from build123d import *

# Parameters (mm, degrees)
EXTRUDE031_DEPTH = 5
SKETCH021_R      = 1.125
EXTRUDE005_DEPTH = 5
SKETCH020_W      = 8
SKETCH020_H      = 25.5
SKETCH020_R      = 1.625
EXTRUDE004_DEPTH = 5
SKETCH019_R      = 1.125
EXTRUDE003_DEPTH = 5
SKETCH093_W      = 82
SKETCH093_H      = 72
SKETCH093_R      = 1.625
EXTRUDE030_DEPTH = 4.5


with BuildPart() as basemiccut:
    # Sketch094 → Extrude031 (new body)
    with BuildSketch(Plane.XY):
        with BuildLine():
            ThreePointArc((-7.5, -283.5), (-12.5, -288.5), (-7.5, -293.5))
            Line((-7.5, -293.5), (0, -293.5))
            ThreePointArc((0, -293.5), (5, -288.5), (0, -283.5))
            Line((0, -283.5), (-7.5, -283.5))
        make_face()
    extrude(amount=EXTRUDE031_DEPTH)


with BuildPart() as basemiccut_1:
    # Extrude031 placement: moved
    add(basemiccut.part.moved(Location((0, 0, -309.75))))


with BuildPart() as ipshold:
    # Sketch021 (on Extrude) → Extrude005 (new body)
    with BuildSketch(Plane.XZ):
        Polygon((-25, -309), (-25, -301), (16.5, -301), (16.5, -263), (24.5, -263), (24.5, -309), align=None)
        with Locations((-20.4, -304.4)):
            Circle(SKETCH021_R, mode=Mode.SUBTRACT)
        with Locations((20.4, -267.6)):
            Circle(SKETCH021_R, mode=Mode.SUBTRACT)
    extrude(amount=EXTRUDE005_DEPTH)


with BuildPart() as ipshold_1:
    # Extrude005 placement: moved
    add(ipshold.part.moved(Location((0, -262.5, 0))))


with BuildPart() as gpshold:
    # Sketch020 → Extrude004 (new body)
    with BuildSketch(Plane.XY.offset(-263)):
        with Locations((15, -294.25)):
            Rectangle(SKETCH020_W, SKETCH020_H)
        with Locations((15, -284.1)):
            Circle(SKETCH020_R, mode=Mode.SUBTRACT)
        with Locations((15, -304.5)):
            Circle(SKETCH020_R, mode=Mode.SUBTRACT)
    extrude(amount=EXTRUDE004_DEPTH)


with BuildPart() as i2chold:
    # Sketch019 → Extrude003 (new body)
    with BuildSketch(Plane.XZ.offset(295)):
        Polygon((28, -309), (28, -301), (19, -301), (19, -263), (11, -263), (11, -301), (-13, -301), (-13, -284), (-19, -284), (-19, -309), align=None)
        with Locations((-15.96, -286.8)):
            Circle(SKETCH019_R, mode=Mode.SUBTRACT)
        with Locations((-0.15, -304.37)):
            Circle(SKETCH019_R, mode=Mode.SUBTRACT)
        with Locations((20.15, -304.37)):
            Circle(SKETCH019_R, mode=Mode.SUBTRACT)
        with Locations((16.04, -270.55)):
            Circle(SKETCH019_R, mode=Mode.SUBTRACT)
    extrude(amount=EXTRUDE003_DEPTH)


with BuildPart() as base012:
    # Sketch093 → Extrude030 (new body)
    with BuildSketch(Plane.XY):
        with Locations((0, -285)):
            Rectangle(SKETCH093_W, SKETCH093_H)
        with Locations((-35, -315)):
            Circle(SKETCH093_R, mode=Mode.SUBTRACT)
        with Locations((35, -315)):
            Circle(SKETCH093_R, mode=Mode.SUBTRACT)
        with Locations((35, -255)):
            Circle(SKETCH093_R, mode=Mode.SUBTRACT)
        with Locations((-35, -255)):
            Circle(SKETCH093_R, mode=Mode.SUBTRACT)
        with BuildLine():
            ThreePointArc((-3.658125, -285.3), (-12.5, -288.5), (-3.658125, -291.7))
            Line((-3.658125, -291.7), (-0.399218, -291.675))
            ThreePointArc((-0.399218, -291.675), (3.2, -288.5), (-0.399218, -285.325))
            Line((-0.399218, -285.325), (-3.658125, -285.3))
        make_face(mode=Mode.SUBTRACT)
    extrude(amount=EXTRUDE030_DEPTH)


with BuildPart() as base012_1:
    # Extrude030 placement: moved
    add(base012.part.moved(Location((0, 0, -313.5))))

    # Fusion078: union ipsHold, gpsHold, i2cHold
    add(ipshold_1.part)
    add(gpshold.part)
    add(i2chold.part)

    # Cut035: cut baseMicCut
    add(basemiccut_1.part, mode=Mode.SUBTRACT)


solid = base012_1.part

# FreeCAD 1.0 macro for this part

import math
import FreeCAD as App
import Part
import Sketcher
from FreeCAD import Vector


def add_polygon(sketch, points):
    """Adds a closed chain of lines whose ends are joined by coincident constraints."""
    first, n = sketch.GeometryCount, len(points)
    for a, b in zip(points, points[1:] + points[:1]):
        sketch.addGeometry(Part.LineSegment(App.Vector(*a, 0), App.Vector(*b, 0)), False)
    for i in range(n):
        sketch.addConstraint(Sketcher.Constraint("Coincident", first + i, 2, first + (i + 1) % n, 1))

doc = App.newDocument("Part")
body = doc.addObject("PartDesign::Body", "Body")

# Sketch on XY plane
sketch1 = body.newObject("Sketcher::SketchObject", "Sketch")
sketch1.AttachmentSupport = (doc.getObject("XY_Plane"), [""])
sketch1.MapMode = "FlatFace"
sketch1.addGeometry([
    Part.ArcOfCircle(Part.Circle(Vector(-8, -288, 0), Vector(0, 0, 1), 5), math.radians(90), math.radians(270)),
    Part.LineSegment(Vector(-8, -294, 0), Vector(0, -294, 0)),
    Part.ArcOfCircle(Part.Circle(Vector(0, -288, 0), Vector(0, 0, 1), 5), math.radians(-90), math.radians(90)),
    Part.LineSegment(Vector(0, -284, 0), Vector(-8, -284, 0)),
], False)
sketch1.addConstraint([
    Sketcher.Constraint("Tangent", 0, 2, 1, 1),
    Sketcher.Constraint("Tangent", 1, 2, 2, 1),
    Sketcher.Constraint("Tangent", 2, 2, 3, 1),
    Sketcher.Constraint("Tangent", 3, 2, 0, 1),
    Sketcher.Constraint("Horizontal", 1),
    Sketcher.Constraint("Horizontal", 3),
    Sketcher.Constraint("PointOnObject", 2, 3, -2),
    Sketcher.Constraint("Radius", 0, 5.0),
    Sketcher.Constraint("DistanceX", 1, 1, 1, 2, 7.5),
    Sketcher.Constraint("DistanceY", 0, 3, -1, 1, 288.5),
])
pad1 = body.newObject("PartDesign::Pad", "Pad")
pad1.Profile = sketch1
pad1.Length = 5
body2 = doc.addObject("PartDesign::Body", "Body001")
doc.recompute()

body.Placement = App.Placement(Vector(0, 0, -309.75), App.Rotation(Vector(0, 0, 1), 0))
boolean = body2.newObject("PartDesign::Boolean", "Boolean")
boolean.Type = "Fuse"
boolean.addObjects([body])
body3 = doc.addObject("PartDesign::Body", "Body002")

# Sketch on XZ plane
sketch2 = body3.newObject("Sketcher::SketchObject", "Sketch001")
sketch2.AttachmentSupport = (doc.getObject("XZ_Plane002"), [""])
sketch2.MapMode = "FlatFace"
add_polygon(sketch2, [(-25, -301), (-25, -309), (24.5, -309), (24.5, -263), (16.5, -263), (16.5, -301)])  # lines 0-5
sketch2.addGeometry(Part.Circle(Vector(-20.4, -304.4, 0), Vector(0, 0, 1), 1.1), False)  # 6
sketch2.addGeometry(Part.Circle(Vector(20.4, -267.6, 0), Vector(0, 0, 1), 1.1), False)  # 7
sketch2.addConstraint([
    Sketcher.Constraint("Vertical", 0),
    Sketcher.Constraint("Horizontal", 1),
    Sketcher.Constraint("Vertical", 2),
    Sketcher.Constraint("Horizontal", 3),
    Sketcher.Constraint("Vertical", 4),
    Sketcher.Constraint("Horizontal", 5),
    Sketcher.Constraint("Equal", 6, 7),
    Sketcher.Constraint("Equal", 3, 0),
    Sketcher.Constraint("Diameter", 6, 2.25),
    Sketcher.Constraint("DistanceX", 3, 2, 3, 1, 8.0),
    Sketcher.Constraint("DistanceY", 2, 1, 2, 2, 46.0),
    Sketcher.Constraint("DistanceX", 1, 1, 1, 2, 49.5),
    Sketcher.Constraint("DistanceX", 0, 2, -1, 1, 25.0),
    Sketcher.Constraint("DistanceY", 0, 2, -1, 1, 309.0),
    Sketcher.Constraint("DistanceX", 6, 3, -1, 1, 20.4),
    Sketcher.Constraint("DistanceY", 6, 3, -1, 1, 304.4),
    Sketcher.Constraint("DistanceX", -1, 1, 7, 3, 20.4),
    Sketcher.Constraint("DistanceY", 7, 3, -1, 1, 267.6),
])
pad2 = body3.newObject("PartDesign::Pad", "Pad001")
pad2.Profile = sketch2
pad2.Length = 5
body4 = doc.addObject("PartDesign::Body", "Body003")
doc.recompute()

body3.Placement = App.Placement(Vector(0, -262.5, 0), App.Rotation(Vector(0, 0, 1), 0))
boolean2 = body4.newObject("PartDesign::Boolean", "Boolean001")
boolean2.Type = "Fuse"
boolean2.addObjects([body3])
body5 = doc.addObject("PartDesign::Body", "Body004")

# Sketch on XY plane
sketch3 = body5.newObject("Sketcher::SketchObject", "Sketch002")
sketch3.AttachmentSupport = (doc.getObject("XY_Plane004"), [""])
sketch3.MapMode = "FlatFace"
sketch3.AttachmentOffset = App.Placement(Vector(0, 0, -263), App.Rotation())
add_polygon(sketch3, [(11, -281.5), (11, -307), (19, -307), (19, -281.5)])  # lines 0-3
sketch3.addGeometry(Part.Circle(Vector(15, -304.5, 0), Vector(0, 0, 1), 1.6), False)  # 4
sketch3.addGeometry(Part.Circle(Vector(15, -284.1, 0), Vector(0, 0, 1), 1.6), False)  # 5
sketch3.addConstraint([
    Sketcher.Constraint("Vertical", 0),
    Sketcher.Constraint("Horizontal", 1),
    Sketcher.Constraint("Vertical", 2),
    Sketcher.Constraint("Horizontal", 3),
    Sketcher.Constraint("Equal", 4, 5),
    Sketcher.Constraint("Vertical", 4, 3, 5, 3),
    Sketcher.Constraint("Diameter", 4, 3.25),
    Sketcher.Constraint("DistanceX", 1, 1, 1, 2, 8.0),
    Sketcher.Constraint("DistanceY", 0, 2, 0, 1, 25.5),
    Sketcher.Constraint("DistanceX", -1, 1, 4, 3, 15.0),
    Sketcher.Constraint("DistanceX", -1, 1, 0, 2, 11.0),
    Sketcher.Constraint("DistanceY", 0, 2, -1, 1, 307.0),
    Sketcher.Constraint("DistanceY", 4, 3, 2, 2, 23.0),
    Sketcher.Constraint("DistanceY", 5, 3, -1, 1, 284.1),
])
pad3 = body5.newObject("PartDesign::Pad", "Pad002")
pad3.Profile = sketch3
pad3.Length = 5
body6 = doc.addObject("PartDesign::Body", "Body005")

# Sketch on XZ plane
sketch4 = body6.newObject("Sketcher::SketchObject", "Sketch003")
sketch4.AttachmentSupport = (doc.getObject("XZ_Plane005"), [""])
sketch4.MapMode = "FlatFace"
sketch4.AttachmentOffset = App.Placement(Vector(0, 0, 295), App.Rotation())
add_polygon(sketch4, [(28, -309), (28, -301), (19, -301), (19, -263), (11, -263), (11, -301), (-13, -301), (-13, -284), (-19, -284), (-19, -309)])  # lines 0-9
sketch4.addGeometry(Part.Circle(Vector(-0.1, -304.4, 0), Vector(0, 0, 1), 1.1), False)  # 10
sketch4.addGeometry(Part.Circle(Vector(20.1, -304.4, 0), Vector(0, 0, 1), 1.1), False)  # 11
sketch4.addGeometry(Part.Circle(Vector(-16, -286.8, 0), Vector(0, 0, 1), 1.1), False)  # 12
sketch4.addGeometry(Part.Circle(Vector(16, -270.6, 0), Vector(0, 0, 1), 1.1), False)  # 13
sketch4.addConstraint([
    Sketcher.Constraint("Vertical", 0),
    Sketcher.Constraint("Horizontal", 1),
    Sketcher.Constraint("Vertical", 2),
    Sketcher.Constraint("Horizontal", 3),
    Sketcher.Constraint("Vertical", 4),
    Sketcher.Constraint("Horizontal", 5),
    Sketcher.Constraint("Vertical", 6),
    Sketcher.Constraint("Horizontal", 7),
    Sketcher.Constraint("Vertical", 8),
    Sketcher.Constraint("Horizontal", 9),
    Sketcher.Constraint("Equal", 10, 11),
    Sketcher.Constraint("Equal", 11, 12),
    Sketcher.Constraint("Equal", 12, 13),
    Sketcher.Constraint("Horizontal", 10, 3, 11, 3),
    Sketcher.Constraint("Horizontal", 1, 2, 4, 2),
    Sketcher.Constraint("Equal", 3, 0),
    Sketcher.Constraint("Diameter", 10, 2.25),
    Sketcher.Constraint("DistanceX", 1, 2, 1, 1, 9.0),
    Sketcher.Constraint("DistanceX", 3, 2, 3, 1, 8.0),
    Sketcher.Constraint("DistanceX", 5, 2, 5, 1, 24.0),
    Sketcher.Constraint("DistanceX", 7, 2, 7, 1, 6.0),
    Sketcher.Constraint("DistanceY", 2, 1, 2, 2, 38.0),
    Sketcher.Constraint("DistanceY", 6, 1, 6, 2, 17.0),
    Sketcher.Constraint("DistanceX", -1, 1, 0, 2, 28.0),
    Sketcher.Constraint("DistanceY", 0, 2, -1, 1, 301.0),
    Sketcher.Constraint("DistanceX", 12, 3, 13, 3, 32.0),
    Sketcher.Constraint("DistanceY", 12, 3, -1, 1, 286.8),
    Sketcher.Constraint("DistanceX", 10, 3, 11, 3, 20.3),
    Sketcher.Constraint("DistanceX", 10, 3, -1, 1, 0.15),
    Sketcher.Constraint("DistanceY", 10, 3, -1, 1, 304.37),
    Sketcher.Constraint("DistanceX", 12, 3, -1, 1, 15.96),
    Sketcher.Constraint("DistanceY", 13, 3, -1, 1, 270.55),
])
pad4 = body6.newObject("PartDesign::Pad", "Pad003")
pad4.Profile = sketch4
pad4.Length = 5
body7 = doc.addObject("PartDesign::Body", "Body006")

# Sketch on XY plane
sketch5 = body7.newObject("Sketcher::SketchObject", "Sketch004")
sketch5.AttachmentSupport = (doc.getObject("XY_Plane006"), [""])
sketch5.MapMode = "FlatFace"
add_polygon(sketch5, [(-41, -249), (-41, -321), (41, -321), (41, -249)])  # lines 0-3
sketch5.addGeometry(Part.Circle(Vector(-35, -315, 0), Vector(0, 0, 1), 1.6), False)  # 4
sketch5.addGeometry(Part.ArcOfCircle(Part.Circle(Vector(-7.5, -288.5, 0), Vector(0, 0, 1), 5), math.radians(40), math.radians(320)), False)  # 5
sketch5.addGeometry(Part.LineSegment(Vector(-3.7, -285.3, 0), Vector(-0.4, -285.3, 0)), False)  # 6
sketch5.addGeometry(Part.ArcOfCircle(Part.Circle(Vector(0, -288.5, 0), Vector(0, 0, 1), 3.2), math.radians(-97), math.radians(97)), False)  # 7
sketch5.addGeometry(Part.LineSegment(Vector(-0.4, -291.7, 0), Vector(-3.7, -291.7, 0)), False)  # 8
sketch5.addGeometry(Part.Circle(Vector(35, -315, 0), Vector(0, 0, 1), 1.6), False)  # 9
sketch5.addGeometry(Part.Circle(Vector(-35, -255, 0), Vector(0, 0, 1), 1.6), False)  # 10
sketch5.addGeometry(Part.Circle(Vector(35, -255, 0), Vector(0, 0, 1), 1.6), False)  # 11
sketch5.addConstraint([
    Sketcher.Constraint("Coincident", 5, 1, 6, 1),
    Sketcher.Constraint("Coincident", 6, 2, 7, 2),
    Sketcher.Constraint("Coincident", 7, 1, 8, 1),
    Sketcher.Constraint("Coincident", 8, 2, 5, 2),
    Sketcher.Constraint("Vertical", 0),
    Sketcher.Constraint("Horizontal", 1),
    Sketcher.Constraint("Vertical", 2),
    Sketcher.Constraint("Horizontal", 3),
    Sketcher.Constraint("Equal", 4, 9),
    Sketcher.Constraint("Equal", 9, 10),
    Sketcher.Constraint("Equal", 10, 11),
    Sketcher.Constraint("Symmetric", 4, 3, 9, 3, -2),
    Sketcher.Constraint("Symmetric", 10, 3, 11, 3, -2),
    Sketcher.Constraint("PointOnObject", 7, 3, -2),
    Sketcher.Constraint("Horizontal", 5, 3, 7, 3),
    Sketcher.Constraint("Vertical", 4, 3, 10, 3),
    Sketcher.Constraint("Vertical", 6, 2, 7, 1),
    Sketcher.Constraint("Vertical", 5, 1, 8, 2),
    Sketcher.Constraint("Radius", 5, 5.0),
    Sketcher.Constraint("Radius", 7, 3.2),
    Sketcher.Constraint("Diameter", 4, 3.25),
    Sketcher.Constraint("DistanceX", 1, 1, 1, 2, 82.0),
    Sketcher.Constraint("DistanceY", 0, 2, 0, 1, 72.0),
    Sketcher.Constraint("DistanceX", 4, 3, -1, 1, 35.0),
    Sketcher.Constraint("DistanceY", 4, 3, -1, 1, 315.0),
    Sketcher.Constraint("DistanceY", 10, 3, -1, 1, 255.0),
    Sketcher.Constraint("DistanceX", 0, 2, -1, 1, 41.0),
    Sketcher.Constraint("DistanceY", 0, 2, -1, 1, 321.0),
    Sketcher.Constraint("DistanceX", 5, 3, -1, 1, 7.5),
    Sketcher.Constraint("DistanceY", 5, 3, -1, 1, 288.5),
    Sketcher.Constraint("DistanceY", 5, 1, -1, 1, 285.3),
    Sketcher.Constraint("DistanceY", 7, 1, 6, 2, 6.35),
])
pad5 = body7.newObject("PartDesign::Pad", "Pad004")
pad5.Profile = sketch5
pad5.Length = 4.5
body8 = doc.addObject("PartDesign::Body", "Body007")
body8.AllowCompound = True
doc.recompute()

body7.Placement = App.Placement(Vector(0, 0, -313.5), App.Rotation(Vector(0, 0, 1), 0))
boolean3 = body8.newObject("PartDesign::Boolean", "Boolean002")
boolean3.Type = "Fuse"
boolean3.addObjects([body7])
doc.recompute()

boolean4 = body8.newObject("PartDesign::Boolean", "Boolean003")
boolean4.Type = "Fuse"
boolean4.addObjects([body4])
doc.recompute()

boolean5 = body8.newObject("PartDesign::Boolean", "Boolean004")
boolean5.Type = "Fuse"
boolean5.addObjects([body5])
doc.recompute()

boolean6 = body8.newObject("PartDesign::Boolean", "Boolean005")
boolean6.Type = "Fuse"
boolean6.addObjects([body6])
doc.recompute()

boolean7 = body8.newObject("PartDesign::Boolean", "Boolean006")
boolean7.Type = "Cut"
boolean7.addObjects([body2])

doc.recompute()
